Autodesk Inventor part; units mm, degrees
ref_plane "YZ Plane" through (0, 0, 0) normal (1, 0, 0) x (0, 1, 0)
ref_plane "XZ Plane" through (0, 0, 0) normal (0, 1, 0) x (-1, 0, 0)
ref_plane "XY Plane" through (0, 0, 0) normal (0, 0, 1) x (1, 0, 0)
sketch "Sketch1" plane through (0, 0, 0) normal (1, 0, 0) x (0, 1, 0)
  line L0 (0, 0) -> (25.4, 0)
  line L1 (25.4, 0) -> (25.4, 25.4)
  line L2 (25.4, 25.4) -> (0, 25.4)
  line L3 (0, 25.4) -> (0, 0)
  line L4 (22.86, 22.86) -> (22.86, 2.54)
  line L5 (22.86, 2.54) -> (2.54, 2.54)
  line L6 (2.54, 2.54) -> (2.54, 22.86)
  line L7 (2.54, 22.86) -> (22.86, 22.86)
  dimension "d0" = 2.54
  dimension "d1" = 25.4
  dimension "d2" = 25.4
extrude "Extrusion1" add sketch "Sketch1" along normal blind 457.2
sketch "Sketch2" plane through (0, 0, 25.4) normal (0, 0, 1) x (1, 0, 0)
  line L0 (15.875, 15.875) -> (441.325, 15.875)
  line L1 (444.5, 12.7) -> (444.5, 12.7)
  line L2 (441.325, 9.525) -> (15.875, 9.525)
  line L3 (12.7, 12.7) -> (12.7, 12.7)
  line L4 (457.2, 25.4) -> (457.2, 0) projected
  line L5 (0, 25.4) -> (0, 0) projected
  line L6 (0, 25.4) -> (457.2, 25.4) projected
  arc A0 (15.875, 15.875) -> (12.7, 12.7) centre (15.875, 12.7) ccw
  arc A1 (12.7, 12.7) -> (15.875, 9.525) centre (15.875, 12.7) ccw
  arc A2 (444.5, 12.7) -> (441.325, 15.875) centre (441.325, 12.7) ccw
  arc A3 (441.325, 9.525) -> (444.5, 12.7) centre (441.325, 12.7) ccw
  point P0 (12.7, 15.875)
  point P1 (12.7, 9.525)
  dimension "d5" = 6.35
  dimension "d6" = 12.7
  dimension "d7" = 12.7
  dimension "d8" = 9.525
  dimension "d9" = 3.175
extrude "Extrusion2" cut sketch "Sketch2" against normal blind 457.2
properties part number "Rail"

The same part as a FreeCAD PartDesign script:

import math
import FreeCAD as App
import Part
import Sketcher
Q = App.Units.Quantity


def add_polygon(sketch, points):
    """Adds a closed chain of lines whose ends are joined by coincident constraints."""
    first, n = sketch.GeometryCount, len(points)
    for a, b in zip(points, points[1:] + points[:1]):
        sketch.addGeometry(Part.LineSegment(App.Vector(*a, 0), App.Vector(*b, 0)), False)
    for i in range(n):
        sketch.addConstraint(Sketcher.Constraint("Coincident", first + i, 2, first + (i + 1) % n, 1))

doc = App.newDocument("Part")
params = doc.addObject("Spreadsheet::Sheet", "Params")
for row, (alias, value) in enumerate([
    ("sketch1_width", "1 in"),
    ("pad1_length", "18 in"),
    ("sketch2_radius", "0.125 in"),
    ("sketch2_width", "16.75 in"),
    ("pocket1_length", "18 in"),
], start=1):
    params.set(f"A{row}", alias)
    params.set(f"B{row}", "=" + value)
    params.setAlias(f"B{row}", alias)

body = doc.addObject("PartDesign::Body", "Body")

# Sketch on YZ plane
sketch1 = body.newObject("Sketcher::SketchObject", "Sketch")
sketch1.AttachmentSupport = (doc.getObject("YZ_Plane"), [""])
sketch1.MapMode = "FlatFace"
add_polygon(sketch1, [(0, 25), (0, 0), (25, 0), (25, 25)])  # lines 0-3
add_polygon(sketch1, [(3, 23), (23, 23), (23, 3), (3, 3)])  # lines 4-7
sketch1.addConstraint([
    Sketcher.Constraint("Vertical", 0),
    Sketcher.Constraint("Horizontal", 1),
    Sketcher.Constraint("Vertical", 2),
    Sketcher.Constraint("Horizontal", 3),
    Sketcher.Constraint("Horizontal", 4),
    Sketcher.Constraint("Vertical", 5),
    Sketcher.Constraint("Horizontal", 6),
    Sketcher.Constraint("Vertical", 7),
    Sketcher.Constraint("Coincident", 0, 2, -1, 1),
    Sketcher.Constraint("Equal", 3, 0),
    Sketcher.Constraint("Equal", 6, 5),
    Sketcher.Constraint("DistanceX", 1, 1, 1, 2, Q("1 in")),
    Sketcher.Constraint("DistanceY", -1, 1, 5, 2, Q("0.1 in")),
    Sketcher.Constraint("DistanceX", -1, 1, 6, 2, Q("0.1 in")),
    Sketcher.Constraint("DistanceX", 4, 2, 2, 2, Q("0.1 in")),
])
sketch1.setExpression("Constraints[19]", "Params.sketch1_width")
pad1 = body.newObject("PartDesign::Pad", "Pad")
pad1.Profile = sketch1
pad1.setExpression("Length", "Params.pad1_length")

# Sketch on XY plane
sketch2 = body.newObject("Sketcher::SketchObject", "Sketch001")
sketch2.AttachmentSupport = (doc.getObject("XY_Plane"), [""])
sketch2.MapMode = "FlatFace"
sketch2.AttachmentOffset = App.Placement(App.Vector(0, 0, 1 * 25.4), App.Rotation())
sketch2.addGeometry([
    Part.LineSegment(App.Vector(441.3, 15.9, 0), App.Vector(15.9, 15.9, 0)),
    Part.ArcOfCircle(Part.Circle(App.Vector(15.9, 12.7, 0), App.Vector(0, 0, 1), 3.2), math.radians(90), math.radians(270)),
    Part.LineSegment(App.Vector(15.9, 9.5, 0), App.Vector(441.3, 9.5, 0)),
    Part.ArcOfCircle(Part.Circle(App.Vector(441.3, 12.7, 0), App.Vector(0, 0, 1), 3.2), math.radians(-90), math.radians(90)),
], False)
sketch2.addConstraint([
    Sketcher.Constraint("Tangent", 0, 2, 1, 1),
    Sketcher.Constraint("Tangent", 1, 2, 2, 1),
    Sketcher.Constraint("Tangent", 2, 2, 3, 1),
    Sketcher.Constraint("Tangent", 3, 2, 0, 1),
    Sketcher.Constraint("Horizontal", 0),
    Sketcher.Constraint("Horizontal", 2),
    Sketcher.Constraint("Radius", 1, Q("0.125 in")),
    Sketcher.Constraint("DistanceY", -1, 1, 1, 3, Q("0.5 in")),
    Sketcher.Constraint("DistanceX", 0, 2, 0, 1, Q("16.75 in")),
    Sketcher.Constraint("DistanceX", -1, 1, 1, 3, Q("0.625 in")),
])
sketch2.setExpression("Constraints[6]", "Params.sketch2_radius")
sketch2.setExpression("Constraints[8]", "Params.sketch2_width")
pocket1 = body.newObject("PartDesign::Pocket", "Pocket")
pocket1.Profile = sketch2
pocket1.setExpression("Length", "Params.pocket1_length")

doc.recompute()
